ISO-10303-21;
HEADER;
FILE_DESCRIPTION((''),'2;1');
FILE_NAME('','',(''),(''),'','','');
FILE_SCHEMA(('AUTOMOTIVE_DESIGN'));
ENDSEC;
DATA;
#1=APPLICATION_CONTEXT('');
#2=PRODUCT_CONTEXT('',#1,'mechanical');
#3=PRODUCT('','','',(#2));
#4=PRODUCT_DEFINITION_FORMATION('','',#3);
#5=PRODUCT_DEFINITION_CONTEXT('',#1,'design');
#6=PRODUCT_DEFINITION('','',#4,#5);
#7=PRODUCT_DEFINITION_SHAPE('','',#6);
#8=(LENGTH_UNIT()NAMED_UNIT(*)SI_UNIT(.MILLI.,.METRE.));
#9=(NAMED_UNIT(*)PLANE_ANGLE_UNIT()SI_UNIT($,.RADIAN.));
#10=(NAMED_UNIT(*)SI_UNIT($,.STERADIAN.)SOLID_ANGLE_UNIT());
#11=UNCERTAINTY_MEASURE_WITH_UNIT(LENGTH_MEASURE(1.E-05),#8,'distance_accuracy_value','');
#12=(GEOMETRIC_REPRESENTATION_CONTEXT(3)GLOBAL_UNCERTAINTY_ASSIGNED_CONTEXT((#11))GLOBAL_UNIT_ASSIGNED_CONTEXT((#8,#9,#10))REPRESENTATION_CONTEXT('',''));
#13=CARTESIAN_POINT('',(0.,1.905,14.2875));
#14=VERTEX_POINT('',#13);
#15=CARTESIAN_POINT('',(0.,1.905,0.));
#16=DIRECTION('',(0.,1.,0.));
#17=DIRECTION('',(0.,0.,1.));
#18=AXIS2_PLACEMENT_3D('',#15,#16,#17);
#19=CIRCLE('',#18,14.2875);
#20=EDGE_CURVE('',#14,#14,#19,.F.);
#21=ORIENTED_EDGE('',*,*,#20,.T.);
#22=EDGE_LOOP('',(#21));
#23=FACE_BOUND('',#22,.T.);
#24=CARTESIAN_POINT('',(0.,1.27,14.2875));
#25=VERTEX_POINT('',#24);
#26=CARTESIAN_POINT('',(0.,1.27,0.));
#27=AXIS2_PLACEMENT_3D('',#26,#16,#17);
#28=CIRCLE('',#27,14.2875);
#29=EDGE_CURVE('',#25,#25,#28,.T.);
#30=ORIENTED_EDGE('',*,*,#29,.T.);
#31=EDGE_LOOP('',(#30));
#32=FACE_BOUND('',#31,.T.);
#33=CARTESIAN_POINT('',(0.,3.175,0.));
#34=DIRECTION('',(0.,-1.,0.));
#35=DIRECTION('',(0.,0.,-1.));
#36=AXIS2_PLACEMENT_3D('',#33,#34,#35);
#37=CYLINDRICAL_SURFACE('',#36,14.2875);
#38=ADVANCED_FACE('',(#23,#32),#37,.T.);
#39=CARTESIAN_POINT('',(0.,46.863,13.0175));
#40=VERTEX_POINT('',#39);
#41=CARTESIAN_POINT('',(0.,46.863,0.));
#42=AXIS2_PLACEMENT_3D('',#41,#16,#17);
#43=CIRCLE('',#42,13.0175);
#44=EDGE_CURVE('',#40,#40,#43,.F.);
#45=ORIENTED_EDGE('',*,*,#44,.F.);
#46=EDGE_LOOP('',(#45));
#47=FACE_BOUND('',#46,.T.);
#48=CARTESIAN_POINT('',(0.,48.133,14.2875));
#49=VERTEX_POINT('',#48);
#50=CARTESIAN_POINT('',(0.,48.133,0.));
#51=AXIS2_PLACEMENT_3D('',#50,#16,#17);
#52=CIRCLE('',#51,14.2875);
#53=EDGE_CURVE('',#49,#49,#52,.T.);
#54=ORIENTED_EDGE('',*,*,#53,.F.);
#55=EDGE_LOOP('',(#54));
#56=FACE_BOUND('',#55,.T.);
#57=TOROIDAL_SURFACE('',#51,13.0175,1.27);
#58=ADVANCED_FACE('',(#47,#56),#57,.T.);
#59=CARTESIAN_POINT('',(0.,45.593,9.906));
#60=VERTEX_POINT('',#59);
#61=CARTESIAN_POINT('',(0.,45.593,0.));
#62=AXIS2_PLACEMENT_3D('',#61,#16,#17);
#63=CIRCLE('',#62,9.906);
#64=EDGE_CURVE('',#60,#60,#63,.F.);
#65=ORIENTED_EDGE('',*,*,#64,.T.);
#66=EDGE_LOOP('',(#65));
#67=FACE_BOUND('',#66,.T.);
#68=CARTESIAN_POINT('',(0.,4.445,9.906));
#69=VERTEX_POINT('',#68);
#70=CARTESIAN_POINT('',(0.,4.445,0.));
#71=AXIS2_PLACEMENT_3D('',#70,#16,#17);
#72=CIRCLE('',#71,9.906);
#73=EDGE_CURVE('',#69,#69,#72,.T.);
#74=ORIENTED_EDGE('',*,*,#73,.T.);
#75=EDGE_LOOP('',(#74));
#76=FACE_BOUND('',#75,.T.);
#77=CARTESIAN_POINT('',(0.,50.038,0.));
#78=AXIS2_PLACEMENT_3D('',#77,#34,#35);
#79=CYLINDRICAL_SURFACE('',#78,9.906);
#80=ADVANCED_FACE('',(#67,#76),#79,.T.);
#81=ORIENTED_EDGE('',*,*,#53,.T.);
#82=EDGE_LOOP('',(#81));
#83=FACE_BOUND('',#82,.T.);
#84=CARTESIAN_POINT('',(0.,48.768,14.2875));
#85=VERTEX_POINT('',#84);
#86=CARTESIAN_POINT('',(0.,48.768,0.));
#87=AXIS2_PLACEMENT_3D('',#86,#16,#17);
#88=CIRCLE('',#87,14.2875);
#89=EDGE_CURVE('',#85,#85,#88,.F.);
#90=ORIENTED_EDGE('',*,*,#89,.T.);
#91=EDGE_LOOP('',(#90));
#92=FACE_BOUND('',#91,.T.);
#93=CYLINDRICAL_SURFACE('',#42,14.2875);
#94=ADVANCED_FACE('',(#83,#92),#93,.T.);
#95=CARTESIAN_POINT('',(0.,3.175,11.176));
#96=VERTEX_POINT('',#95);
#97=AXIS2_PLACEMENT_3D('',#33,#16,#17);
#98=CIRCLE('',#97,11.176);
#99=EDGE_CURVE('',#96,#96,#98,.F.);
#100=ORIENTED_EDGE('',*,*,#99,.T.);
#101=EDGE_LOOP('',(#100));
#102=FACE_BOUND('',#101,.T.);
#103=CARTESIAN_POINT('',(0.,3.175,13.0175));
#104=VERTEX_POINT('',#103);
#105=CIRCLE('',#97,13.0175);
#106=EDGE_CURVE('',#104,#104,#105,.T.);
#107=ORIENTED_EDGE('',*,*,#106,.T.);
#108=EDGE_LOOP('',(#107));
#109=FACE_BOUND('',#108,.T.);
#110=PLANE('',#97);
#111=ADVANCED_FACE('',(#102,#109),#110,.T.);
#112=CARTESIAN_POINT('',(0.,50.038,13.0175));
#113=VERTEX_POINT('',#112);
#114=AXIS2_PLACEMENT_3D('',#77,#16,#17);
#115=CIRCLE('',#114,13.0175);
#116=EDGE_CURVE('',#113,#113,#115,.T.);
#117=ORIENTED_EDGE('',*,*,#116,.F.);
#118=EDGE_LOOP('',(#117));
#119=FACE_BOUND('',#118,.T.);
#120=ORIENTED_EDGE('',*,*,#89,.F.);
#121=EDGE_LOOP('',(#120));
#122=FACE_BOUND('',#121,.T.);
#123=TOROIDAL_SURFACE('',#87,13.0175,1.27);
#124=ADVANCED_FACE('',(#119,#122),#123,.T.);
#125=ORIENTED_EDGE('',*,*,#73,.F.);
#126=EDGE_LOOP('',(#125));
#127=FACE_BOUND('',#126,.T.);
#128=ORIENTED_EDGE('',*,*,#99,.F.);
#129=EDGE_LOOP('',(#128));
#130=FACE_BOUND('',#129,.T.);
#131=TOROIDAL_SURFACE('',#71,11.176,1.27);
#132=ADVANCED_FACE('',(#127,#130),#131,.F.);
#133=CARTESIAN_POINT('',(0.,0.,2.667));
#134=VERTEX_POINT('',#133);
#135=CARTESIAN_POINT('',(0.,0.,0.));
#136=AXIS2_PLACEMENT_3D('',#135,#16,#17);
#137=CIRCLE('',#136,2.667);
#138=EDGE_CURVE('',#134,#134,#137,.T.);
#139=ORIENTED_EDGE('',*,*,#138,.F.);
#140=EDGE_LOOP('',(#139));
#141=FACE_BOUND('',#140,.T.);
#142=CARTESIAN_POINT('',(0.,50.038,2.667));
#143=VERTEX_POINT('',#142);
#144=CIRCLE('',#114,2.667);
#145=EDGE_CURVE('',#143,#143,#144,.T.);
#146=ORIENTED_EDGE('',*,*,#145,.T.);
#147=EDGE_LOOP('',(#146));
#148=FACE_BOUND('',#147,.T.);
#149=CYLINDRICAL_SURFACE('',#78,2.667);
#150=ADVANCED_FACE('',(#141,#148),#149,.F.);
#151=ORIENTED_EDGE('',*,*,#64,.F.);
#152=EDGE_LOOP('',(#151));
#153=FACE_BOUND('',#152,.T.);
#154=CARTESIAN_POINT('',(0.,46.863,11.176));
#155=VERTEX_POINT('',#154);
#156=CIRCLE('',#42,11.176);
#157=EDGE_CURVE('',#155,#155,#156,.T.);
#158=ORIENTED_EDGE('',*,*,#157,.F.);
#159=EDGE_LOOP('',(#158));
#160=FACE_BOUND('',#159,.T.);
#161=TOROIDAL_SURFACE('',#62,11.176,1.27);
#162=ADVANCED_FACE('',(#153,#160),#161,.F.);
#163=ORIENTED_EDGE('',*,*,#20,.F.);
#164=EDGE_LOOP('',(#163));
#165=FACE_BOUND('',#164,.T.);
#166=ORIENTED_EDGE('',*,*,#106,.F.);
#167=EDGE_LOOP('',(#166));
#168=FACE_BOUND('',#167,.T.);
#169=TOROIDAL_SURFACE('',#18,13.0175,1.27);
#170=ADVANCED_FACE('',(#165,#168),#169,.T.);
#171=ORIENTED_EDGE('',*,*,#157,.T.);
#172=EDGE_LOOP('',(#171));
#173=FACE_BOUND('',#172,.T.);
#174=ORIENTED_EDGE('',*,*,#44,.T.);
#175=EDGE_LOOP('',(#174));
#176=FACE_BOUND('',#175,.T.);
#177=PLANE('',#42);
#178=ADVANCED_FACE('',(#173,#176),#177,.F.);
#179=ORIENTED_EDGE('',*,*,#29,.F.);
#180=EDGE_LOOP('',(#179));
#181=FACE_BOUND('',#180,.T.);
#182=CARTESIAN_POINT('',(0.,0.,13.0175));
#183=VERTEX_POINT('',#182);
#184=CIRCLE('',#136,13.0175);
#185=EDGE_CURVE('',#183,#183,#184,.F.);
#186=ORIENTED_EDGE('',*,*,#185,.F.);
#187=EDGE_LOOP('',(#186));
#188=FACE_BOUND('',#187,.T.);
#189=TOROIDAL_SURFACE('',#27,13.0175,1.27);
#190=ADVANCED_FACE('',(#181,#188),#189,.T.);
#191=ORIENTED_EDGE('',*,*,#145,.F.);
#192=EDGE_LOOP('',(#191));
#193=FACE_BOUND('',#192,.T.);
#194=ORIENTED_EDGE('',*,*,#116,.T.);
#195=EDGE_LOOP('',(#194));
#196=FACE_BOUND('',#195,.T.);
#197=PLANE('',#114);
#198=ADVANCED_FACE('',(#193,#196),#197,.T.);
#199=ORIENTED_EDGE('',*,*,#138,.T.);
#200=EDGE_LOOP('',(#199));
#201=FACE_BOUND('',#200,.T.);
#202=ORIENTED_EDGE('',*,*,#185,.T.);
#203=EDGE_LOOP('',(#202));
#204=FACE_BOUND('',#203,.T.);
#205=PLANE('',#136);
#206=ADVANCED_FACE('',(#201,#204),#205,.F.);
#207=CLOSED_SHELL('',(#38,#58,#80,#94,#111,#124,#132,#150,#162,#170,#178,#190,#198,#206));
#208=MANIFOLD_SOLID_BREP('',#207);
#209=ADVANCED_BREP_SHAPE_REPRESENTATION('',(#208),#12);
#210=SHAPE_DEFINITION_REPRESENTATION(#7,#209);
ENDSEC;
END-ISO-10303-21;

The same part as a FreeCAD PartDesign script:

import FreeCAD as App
import Part
import Sketcher

V = App.Vector
Q = App.Units.Quantity


def edges_at(feature, points):
    """Names of the edges that pass closest to the given points."""
    edges = feature.Shape.Edges
    near = lambda p: min(range(len(edges)), key=lambda i: edges[i].distToShape(Part.Vertex(*p))[0])
    return sorted({f"Edge{near(p) + 1}" for p in points})

doc = App.newDocument("Part")
body = doc.addObject("PartDesign::Body", "Body")

sketch1 = body.newObject("Sketcher::SketchObject", "Sketch")
sketch1.AttachmentSupport = (doc.getObject("XZ_Plane"), [""])
sketch1.MapMode = "FlatFace"
sketch1.addGeometry(Part.Circle(V(0, 0, 0), V(0, 0, 1), 9.9), False)
sketch1.addGeometry(Part.Circle(V(0, 0, 0), V(0, 0, 1), 2.7), False)
sketch1.addConstraint(Sketcher.Constraint("Coincident", 0, 3, -1, 1))
sketch1.addConstraint(Sketcher.Constraint("Coincident", 1, 3, -1, 1))
sketch1.addConstraint(Sketcher.Constraint("Diameter", 0, Q("0.78 in")))
sketch1.addConstraint(Sketcher.Constraint("Diameter", 1, Q("0.21 in")))
pad1 = body.newObject("PartDesign::Pad", "Pad")
pad1.Profile = sketch1
pad1.Length = Q("1.97 in")
pad1.Reversed = True

sketch2 = body.newObject("Sketcher::SketchObject", "Sketch001")
sketch2.AttachmentSupport = (doc.getObject("XZ_Plane"), [""])
sketch2.MapMode = "FlatFace"
sketch2.AttachmentOffset = App.Placement(V(0, 0, -1.845 * 25.4), App.Rotation())
sketch2.addGeometry(Part.Circle(V(0, 0, 0), V(0, 0, 1), 14.3), False)
sketch2.addGeometry(Part.Circle(V(0, 0, 0), V(0, 0, 1), 2.7), False)
sketch2.addConstraint(Sketcher.Constraint("Coincident", 0, 3, -1, 1))
sketch2.addConstraint(Sketcher.Constraint("Coincident", 1, 3, -1, 1))
sketch2.addConstraint(Sketcher.Constraint("Diameter", 1, Q("0.21 in")))
sketch2.addConstraint(Sketcher.Constraint("Diameter", 0, Q("1.125 in")))
pad2 = body.newObject("PartDesign::Pad", "Pad001")
pad2.Profile = sketch2
pad2.Length = Q("0.125 in")
pad2.Reversed = True

sketch3 = body.newObject("Sketcher::SketchObject", "Sketch002")
sketch3.AttachmentSupport = (doc.getObject("XZ_Plane"), [""])
sketch3.MapMode = "FlatFace"
sketch3.addGeometry(Part.Circle(V(0, 0, 0), V(0, 0, 1), 14.3), False)
sketch3.addGeometry(Part.Circle(V(0, 0, 0), V(0, 0, 1), 2.7), False)
sketch3.addConstraint(Sketcher.Constraint("Coincident", 0, 3, -1, 1))
sketch3.addConstraint(Sketcher.Constraint("Coincident", 1, 3, -1, 1))
sketch3.addConstraint(Sketcher.Constraint("Diameter", 1, Q("0.21 in")))
sketch3.addConstraint(Sketcher.Constraint("Diameter", 0, Q("1.125 in")))
pad3 = body.newObject("PartDesign::Pad", "Pad002")
pad3.Profile = sketch3
pad3.Length = Q("0.125 in")
pad3.Reversed = True
doc.recompute()

fillet = body.newObject("PartDesign::Fillet", "Fillet")
fillet.Base = (pad3, edges_at(pad3, [
    (0, 46.863, -9.906),
    (0, 50.038, -14.287),
    (0, 46.863, -14.287),
    (0, 3.175, -14.287),
    (0, 3.175, -9.906),
    (0, 0, -14.287),
]))
fillet.Radius = Q("0.05 in")

doc.recompute()
